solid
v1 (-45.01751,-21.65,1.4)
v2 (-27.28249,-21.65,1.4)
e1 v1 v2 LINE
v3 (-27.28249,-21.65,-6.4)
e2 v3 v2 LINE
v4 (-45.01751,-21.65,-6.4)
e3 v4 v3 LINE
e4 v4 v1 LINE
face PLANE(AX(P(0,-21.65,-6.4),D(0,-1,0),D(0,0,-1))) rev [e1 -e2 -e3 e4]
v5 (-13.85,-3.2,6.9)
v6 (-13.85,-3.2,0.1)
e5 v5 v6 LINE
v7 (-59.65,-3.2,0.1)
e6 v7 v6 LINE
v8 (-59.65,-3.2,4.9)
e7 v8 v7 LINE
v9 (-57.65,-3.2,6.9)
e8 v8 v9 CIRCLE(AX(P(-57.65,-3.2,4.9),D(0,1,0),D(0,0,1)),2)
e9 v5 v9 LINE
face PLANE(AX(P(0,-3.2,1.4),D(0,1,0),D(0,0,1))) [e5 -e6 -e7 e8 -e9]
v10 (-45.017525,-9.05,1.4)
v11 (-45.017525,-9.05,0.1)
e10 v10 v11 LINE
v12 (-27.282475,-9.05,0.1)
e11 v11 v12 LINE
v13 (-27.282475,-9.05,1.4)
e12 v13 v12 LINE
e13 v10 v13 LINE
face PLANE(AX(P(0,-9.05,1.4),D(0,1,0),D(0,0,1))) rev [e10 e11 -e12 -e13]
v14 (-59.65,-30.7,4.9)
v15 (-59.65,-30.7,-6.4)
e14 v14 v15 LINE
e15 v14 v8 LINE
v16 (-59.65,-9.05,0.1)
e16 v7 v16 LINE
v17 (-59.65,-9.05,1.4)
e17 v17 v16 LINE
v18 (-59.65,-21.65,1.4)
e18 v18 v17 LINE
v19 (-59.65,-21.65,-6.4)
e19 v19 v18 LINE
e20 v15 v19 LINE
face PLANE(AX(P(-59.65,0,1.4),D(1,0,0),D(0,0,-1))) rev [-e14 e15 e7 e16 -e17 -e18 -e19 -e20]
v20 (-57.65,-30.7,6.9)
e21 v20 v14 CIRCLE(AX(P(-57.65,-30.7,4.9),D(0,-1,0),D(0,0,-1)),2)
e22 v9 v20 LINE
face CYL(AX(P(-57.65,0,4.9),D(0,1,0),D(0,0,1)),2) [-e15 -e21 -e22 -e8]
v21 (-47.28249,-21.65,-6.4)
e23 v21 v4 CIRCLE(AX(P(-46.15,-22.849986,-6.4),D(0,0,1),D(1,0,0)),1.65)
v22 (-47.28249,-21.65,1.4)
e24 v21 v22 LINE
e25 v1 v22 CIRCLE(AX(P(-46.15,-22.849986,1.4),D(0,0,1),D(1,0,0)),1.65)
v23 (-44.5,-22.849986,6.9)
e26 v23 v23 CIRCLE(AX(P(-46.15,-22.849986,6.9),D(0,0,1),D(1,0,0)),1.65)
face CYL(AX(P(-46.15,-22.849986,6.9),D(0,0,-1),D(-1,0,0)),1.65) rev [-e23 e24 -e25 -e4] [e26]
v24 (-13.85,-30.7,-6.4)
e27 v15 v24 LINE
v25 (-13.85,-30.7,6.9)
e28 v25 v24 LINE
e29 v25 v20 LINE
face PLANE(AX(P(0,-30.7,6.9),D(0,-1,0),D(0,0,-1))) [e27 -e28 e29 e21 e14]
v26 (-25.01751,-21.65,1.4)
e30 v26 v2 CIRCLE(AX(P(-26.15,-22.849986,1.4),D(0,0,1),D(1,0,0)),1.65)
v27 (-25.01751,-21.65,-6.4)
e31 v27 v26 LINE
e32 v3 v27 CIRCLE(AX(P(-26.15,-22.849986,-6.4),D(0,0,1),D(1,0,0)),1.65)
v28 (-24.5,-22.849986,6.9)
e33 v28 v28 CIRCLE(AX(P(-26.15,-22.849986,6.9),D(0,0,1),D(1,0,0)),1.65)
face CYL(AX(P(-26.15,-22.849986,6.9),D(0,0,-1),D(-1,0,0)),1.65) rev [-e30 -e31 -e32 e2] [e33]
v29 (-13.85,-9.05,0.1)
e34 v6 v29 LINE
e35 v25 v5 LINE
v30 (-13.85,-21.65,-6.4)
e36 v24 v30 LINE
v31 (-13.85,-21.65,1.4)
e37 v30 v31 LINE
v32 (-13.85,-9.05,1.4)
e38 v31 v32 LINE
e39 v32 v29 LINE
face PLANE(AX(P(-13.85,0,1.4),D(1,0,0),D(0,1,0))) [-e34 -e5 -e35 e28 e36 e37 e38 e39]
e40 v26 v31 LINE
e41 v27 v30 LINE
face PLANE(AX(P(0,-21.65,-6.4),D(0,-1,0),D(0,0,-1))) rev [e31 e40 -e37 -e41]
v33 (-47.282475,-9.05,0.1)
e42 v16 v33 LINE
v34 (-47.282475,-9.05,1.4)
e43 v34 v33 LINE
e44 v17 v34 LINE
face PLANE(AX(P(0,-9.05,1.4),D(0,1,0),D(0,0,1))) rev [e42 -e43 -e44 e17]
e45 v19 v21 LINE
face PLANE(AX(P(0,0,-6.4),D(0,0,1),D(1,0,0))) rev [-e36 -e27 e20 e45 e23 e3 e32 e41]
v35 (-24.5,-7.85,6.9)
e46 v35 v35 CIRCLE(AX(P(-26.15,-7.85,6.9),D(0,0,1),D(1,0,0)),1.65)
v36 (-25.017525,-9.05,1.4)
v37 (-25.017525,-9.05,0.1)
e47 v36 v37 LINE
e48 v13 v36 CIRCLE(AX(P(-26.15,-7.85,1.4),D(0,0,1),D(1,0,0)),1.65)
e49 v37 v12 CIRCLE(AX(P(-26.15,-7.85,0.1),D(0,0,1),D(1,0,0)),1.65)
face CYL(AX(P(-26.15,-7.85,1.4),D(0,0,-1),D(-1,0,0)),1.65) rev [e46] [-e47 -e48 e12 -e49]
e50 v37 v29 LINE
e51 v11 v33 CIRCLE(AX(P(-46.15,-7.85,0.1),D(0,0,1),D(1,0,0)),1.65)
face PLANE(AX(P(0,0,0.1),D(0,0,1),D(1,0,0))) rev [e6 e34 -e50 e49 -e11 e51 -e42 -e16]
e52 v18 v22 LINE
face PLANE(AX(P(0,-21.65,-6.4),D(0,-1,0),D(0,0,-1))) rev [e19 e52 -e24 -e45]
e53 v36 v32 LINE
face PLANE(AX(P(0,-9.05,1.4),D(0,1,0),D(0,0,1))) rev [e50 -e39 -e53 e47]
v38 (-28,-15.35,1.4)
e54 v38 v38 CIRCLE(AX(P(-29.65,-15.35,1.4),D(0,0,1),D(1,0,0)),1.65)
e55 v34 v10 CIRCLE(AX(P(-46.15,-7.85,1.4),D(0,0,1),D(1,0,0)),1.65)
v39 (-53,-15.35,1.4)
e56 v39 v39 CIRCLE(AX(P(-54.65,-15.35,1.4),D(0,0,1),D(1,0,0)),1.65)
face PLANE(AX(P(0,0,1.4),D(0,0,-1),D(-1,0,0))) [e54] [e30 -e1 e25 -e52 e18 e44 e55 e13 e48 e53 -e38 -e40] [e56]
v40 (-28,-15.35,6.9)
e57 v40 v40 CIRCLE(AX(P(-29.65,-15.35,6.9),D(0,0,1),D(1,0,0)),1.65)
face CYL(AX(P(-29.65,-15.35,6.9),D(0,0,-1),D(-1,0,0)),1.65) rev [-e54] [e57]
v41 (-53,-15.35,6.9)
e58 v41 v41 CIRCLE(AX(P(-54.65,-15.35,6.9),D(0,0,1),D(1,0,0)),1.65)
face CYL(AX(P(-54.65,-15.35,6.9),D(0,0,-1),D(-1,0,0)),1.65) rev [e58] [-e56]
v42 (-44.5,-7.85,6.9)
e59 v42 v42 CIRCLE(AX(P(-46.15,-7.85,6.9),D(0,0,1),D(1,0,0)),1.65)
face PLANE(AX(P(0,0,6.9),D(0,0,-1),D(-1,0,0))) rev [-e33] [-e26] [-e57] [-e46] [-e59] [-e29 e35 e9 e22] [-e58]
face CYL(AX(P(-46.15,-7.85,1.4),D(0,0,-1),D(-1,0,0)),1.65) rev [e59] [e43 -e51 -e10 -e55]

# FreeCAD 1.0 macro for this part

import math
import FreeCAD as App
import Part
import Sketcher

V = App.Vector
Q = App.Units.Quantity


def edges_at(feature, points):
    """Names of the edges that pass closest to the given points."""
    edges = feature.Shape.Edges
    near = lambda p: min(range(len(edges)), key=lambda i: edges[i].distToShape(Part.Vertex(*p))[0])
    return sorted({f"Edge{near(p) + 1}" for p in points})

doc = App.newDocument("Part")
body = doc.addObject("PartDesign::Body", "Body")

sketch1 = doc.addObject("Sketcher::SketchObject", "Sketch")
body.addObject(sketch1)
sketch1.AttachmentSupport = (doc.XY_Plane, [""])
sketch1.MapMode = "FlatFace"
sketch1.AttachmentOffset = App.Placement(V(0, 0, 0.1), App.Rotation())
sketch1.addGeometry([
    Part.LineSegment(V(-13.8, -3.2, 0), V(-59.6, -3.2, 0)),
    Part.LineSegment(V(-59.6, -3.2, 0), V(-59.6, -9.1, 0)),
    Part.LineSegment(V(-59.6, -9.1, 0), V(-47.3, -9.1, 0)),
    Part.ArcOfCircle(Part.Circle(V(-46.1, -7.8, 0), V(0, 0, 1), 1.6), math.radians(0), math.radians(227)),
    Part.ArcOfCircle(Part.Circle(V(-46.1, -7.9, 0), V(0, 0, 1), 1.6), math.radians(-47), math.radians(0)),
    Part.LineSegment(V(-45, -9.1, 0), V(-27.3, -9.1, 0)),
    Part.ArcOfCircle(Part.Circle(V(-26.1, -7.8, 0), V(0, 0, 1), 1.6), math.radians(0), math.radians(227)),
    Part.ArcOfCircle(Part.Circle(V(-26.1, -7.9, 0), V(0, 0, 1), 1.6), math.radians(-47), math.radians(0)),
    Part.LineSegment(V(-25, -9.1, 0), V(-13.8, -9.1, 0)),
    Part.LineSegment(V(-13.8, -9.1, 0), V(-13.8, -3.2, 0)),
], False)
sketch1.addConstraint([
    Sketcher.Constraint("Coincident", 0, 2, 1, 1),
    Sketcher.Constraint("Coincident", 1, 2, 2, 1),
    Sketcher.Constraint("Coincident", 2, 2, 3, 2),
    Sketcher.Constraint("Tangent", 3, 1, 4, 2),
    Sketcher.Constraint("Coincident", 4, 1, 5, 1),
    Sketcher.Constraint("Coincident", 5, 2, 6, 2),
    Sketcher.Constraint("Tangent", 6, 1, 7, 2),
    Sketcher.Constraint("Coincident", 7, 1, 8, 1),
    Sketcher.Constraint("Coincident", 8, 2, 9, 1),
    Sketcher.Constraint("Coincident", 9, 2, 0, 1),
    Sketcher.Constraint("Horizontal", 0),
    Sketcher.Constraint("Vertical", 1),
    Sketcher.Constraint("Horizontal", 2),
    Sketcher.Constraint("Horizontal", 5),
    Sketcher.Constraint("Horizontal", 8),
    Sketcher.Constraint("Vertical", 9),
    Sketcher.Constraint("Equal", 3, 4),
    Sketcher.Constraint("Equal", 4, 6),
    Sketcher.Constraint("Equal", 6, 7),
    Sketcher.Constraint("Horizontal", 4, 3, 6, 3),
    Sketcher.Constraint("Horizontal", 7, 3, 3, 1),
    Sketcher.Constraint("Horizontal", 2, 2, 4, 1),
    Sketcher.Constraint("Horizontal", 3, 1, 6, 1),
    Sketcher.Constraint("Horizontal", 5, 2, 7, 1),
    Sketcher.Constraint("Radius", 3, Q("1.65 mm")),
    Sketcher.Constraint("DistanceX", 0, 2, 0, 1, Q("45.8 mm")),
    Sketcher.Constraint("DistanceX", 4, 3, 6, 3, Q("20 mm")),
    Sketcher.Constraint("DistanceY", 1, 2, 1, 1, Q("5.85 mm")),
    Sketcher.Constraint("DistanceY", 0, 2, -1, 1, Q("3.2 mm")),
    Sketcher.Constraint("DistanceX", 3, 1, -1, 1, Q("44.5 mm")),
    Sketcher.Constraint("DistanceX", 0, 2, 3, 3, Q("13.5 mm")),
    Sketcher.Constraint("DistanceY", 1, 2, 3, 3, Q("1.2 mm")),
])
pad1 = doc.addObject("PartDesign::Pad", "Pad")
body.addObject(pad1)
pad1.Profile = sketch1
pad1.Length = 1.3
body2 = doc.addObject("PartDesign::Body", "Body001")

sketch2 = doc.addObject("Sketcher::SketchObject", "Sketch001")
body2.addObject(sketch2)
sketch2.AttachmentSupport = (doc.getObject("XY_Plane001"), [""])
sketch2.MapMode = "FlatFace"
sketch2.AttachmentOffset = App.Placement(V(0, 0, 0.1), App.Rotation())
sketch2.addGeometry([
    Part.LineSegment(V(-47.3, -21.6, 0), V(-59.6, -21.6, 0)),
    Part.LineSegment(V(-59.6, -21.6, 0), V(-59.6, -30.7, 0)),
    Part.LineSegment(V(-59.6, -30.7, 0), V(-13.8, -30.7, 0)),
    Part.LineSegment(V(-13.8, -30.7, 0), V(-13.8, -21.6, 0)),
    Part.LineSegment(V(-13.8, -21.6, 0), V(-25, -21.6, 0)),
    Part.ArcOfCircle(Part.Circle(V(-26.1, -22.8, 0), V(0, 0, 1), 1.6), math.radians(0), math.radians(47)),
    Part.ArcOfCircle(Part.Circle(V(-26.1, -22.8, 0), V(0, 0, 1), 1.6), math.radians(133), math.radians(360)),
    Part.LineSegment(V(-27.3, -21.6, 0), V(-45, -21.6, 0)),
    Part.ArcOfCircle(Part.Circle(V(-46.1, -22.8, 0), V(0, 0, 1), 1.6), math.radians(0), math.radians(47)),
    Part.ArcOfCircle(Part.Circle(V(-46.1, -22.8, 0), V(0, 0, 1), 1.6), math.radians(133), math.radians(360)),
], False)
sketch2.addConstraint([
    Sketcher.Constraint("Coincident", 0, 2, 1, 1),
    Sketcher.Constraint("Coincident", 1, 2, 2, 1),
    Sketcher.Constraint("Coincident", 2, 2, 3, 1),
    Sketcher.Constraint("Coincident", 3, 2, 4, 1),
    Sketcher.Constraint("Coincident", 4, 2, 5, 2),
    Sketcher.Constraint("Tangent", 5, 1, 6, 2),
    Sketcher.Constraint("Coincident", 6, 1, 7, 1),
    Sketcher.Constraint("Coincident", 7, 2, 8, 2),
    Sketcher.Constraint("Tangent", 8, 1, 9, 2),
    Sketcher.Constraint("Coincident", 9, 1, 0, 1),
    Sketcher.Constraint("Horizontal", 0),
    Sketcher.Constraint("Vertical", 1),
    Sketcher.Constraint("Horizontal", 2),
    Sketcher.Constraint("Vertical", 3),
    Sketcher.Constraint("Horizontal", 4),
    Sketcher.Constraint("Horizontal", 7),
    Sketcher.Constraint("Equal", 5, 6),
    Sketcher.Constraint("Equal", 6, 8),
    Sketcher.Constraint("Equal", 8, 9),
    Sketcher.Constraint("Horizontal", 6, 3, 8, 3),
    Sketcher.Constraint("Horizontal", 0, 2, 3, 2),
    Sketcher.Constraint("Horizontal", 9, 3, 5, 1),
    Sketcher.Constraint("Horizontal", 4, 2, 6, 1),
    Sketcher.Constraint("Horizontal", 5, 1, 8, 1),
    Sketcher.Constraint("Radius", 5, Q("1.65 mm")),
    Sketcher.Constraint("DistanceX", 2, 1, 2, 2, Q("45.8 mm")),
    Sketcher.Constraint("DistanceX", 8, 3, 6, 3, Q("20 mm")),
    Sketcher.Constraint("DistanceY", 1, 2, 1, 1, Q("9.05 mm")),
    Sketcher.Constraint("DistanceY", 1, 2, -1, 1, Q("30.7 mm")),
    Sketcher.Constraint("DistanceX", 5, 1, -1, 1, Q("24.5 mm")),
    Sketcher.Constraint("DistanceX", 0, 2, 9, 3, Q("13.5 mm")),
    Sketcher.Constraint("DistanceX", 0, 2, 0, 1, Q("12.36751 mm")),
])
pad2 = doc.addObject("PartDesign::Pad", "Pad001")
body2.addObject(pad2)
pad2.Profile = sketch2
pad2.Type = "TwoLengths"
pad2.Length = 1.3
pad2.Length2 = 6.5
body.AllowCompound = True
doc.recompute()

boolean = doc.addObject("PartDesign::Boolean", "Boolean")
body.addObject(boolean)
boolean.Type = "Fuse"
boolean.addObjects([body2])

sketch3 = doc.addObject("Sketcher::SketchObject", "Sketch002")
body.addObject(sketch3)
sketch3.AttachmentSupport = (doc.XY_Plane, [""])
sketch3.MapMode = "FlatFace"
sketch3.AttachmentOffset = App.Placement(V(0, 0, 1.4), App.Rotation())
sketch3.addGeometry([
    Part.LineSegment(V(-59.6, -3.2, 0), V(-59.6, -30.7, 0)),
    Part.LineSegment(V(-59.6, -30.7, 0), V(-13.8, -30.7, 0)),
    Part.LineSegment(V(-13.8, -30.7, 0), V(-13.8, -3.2, 0)),
    Part.LineSegment(V(-13.8, -3.2, 0), V(-59.6, -3.2, 0)),
    Part.Circle(V(-46.1, -22.8, 0), V(0, 0, 1), 1.6),
    Part.Circle(V(-54.6, -15.3, 0), V(0, 0, 1), 1.6),
    Part.Circle(V(-26.1, -22.8, 0), V(0, 0, 1), 1.6),
    Part.Circle(V(-29.6, -15.3, 0), V(0, 0, 1), 1.6),
    Part.Circle(V(-46.1, -7.8, 0), V(0, 0, 1), 1.6),
    Part.Circle(V(-26.1, -7.8, 0), V(0, 0, 1), 1.6),
], False)
sketch3.addConstraint([
    Sketcher.Constraint("Coincident", 0, 2, 1, 1),
    Sketcher.Constraint("Coincident", 1, 2, 2, 1),
    Sketcher.Constraint("Coincident", 2, 2, 3, 1),
    Sketcher.Constraint("Coincident", 3, 2, 0, 1),
    Sketcher.Constraint("Vertical", 0),
    Sketcher.Constraint("Horizontal", 1),
    Sketcher.Constraint("Vertical", 2),
    Sketcher.Constraint("Horizontal", 3),
    Sketcher.Constraint("Equal", 4, 5),
    Sketcher.Constraint("Equal", 5, 6),
    Sketcher.Constraint("Equal", 6, 7),
    Sketcher.Constraint("Equal", 7, 8),
    Sketcher.Constraint("Equal", 8, 9),
    Sketcher.Constraint("Horizontal", 4, 3, 6, 3),
    Sketcher.Constraint("Horizontal", 5, 3, 7, 3),
    Sketcher.Constraint("Horizontal", 8, 3, 9, 3),
    Sketcher.Constraint("Vertical", 4, 3, 8, 3),
    Sketcher.Constraint("Vertical", 6, 3, 9, 3),
    Sketcher.Constraint("Diameter", 4, Q("3.3 mm")),
    Sketcher.Constraint("DistanceX", 1, 1, 1, 2, Q("45.8 mm")),
    Sketcher.Constraint("DistanceY", 0, 2, 0, 1, Q("27.5 mm")),
    Sketcher.Constraint("DistanceX", 4, 3, 6, 3, Q("20 mm")),
    Sketcher.Constraint("DistanceX", 5, 3, 7, 3, Q("25 mm")),
    Sketcher.Constraint("DistanceX", 0, 2, 5, 3, Q("5 mm")),
    Sketcher.Constraint("DistanceY", 0, 2, -1, 1, Q("30.7 mm")),
    Sketcher.Constraint("DistanceX", 5, 3, 4, 3, Q("8.5 mm")),
    Sketcher.Constraint("DistanceY", 5, 3, 8, 3, Q("7.5 mm")),
    Sketcher.Constraint("DistanceX", 4, 3, -1, 1, Q("46.15 mm")),
    Sketcher.Constraint("DistanceY", 5, 3, -1, 1, Q("15.35 mm")),
    Sketcher.Constraint("DistanceY", 4, 3, -1, 1, Q("22.849986 mm")),
])
pad3 = doc.addObject("PartDesign::Pad", "Pad002")
body.addObject(pad3)
pad3.Profile = sketch3
pad3.Length = 5.5
doc.recompute()

fillet = doc.addObject("PartDesign::Fillet", "Fillet")
body.addObject(fillet)
fillet.Base = (pad3, edges_at(pad3, [(-59.65, -16.95, 6.9)]))
fillet.Radius = 2

doc.recompute()
